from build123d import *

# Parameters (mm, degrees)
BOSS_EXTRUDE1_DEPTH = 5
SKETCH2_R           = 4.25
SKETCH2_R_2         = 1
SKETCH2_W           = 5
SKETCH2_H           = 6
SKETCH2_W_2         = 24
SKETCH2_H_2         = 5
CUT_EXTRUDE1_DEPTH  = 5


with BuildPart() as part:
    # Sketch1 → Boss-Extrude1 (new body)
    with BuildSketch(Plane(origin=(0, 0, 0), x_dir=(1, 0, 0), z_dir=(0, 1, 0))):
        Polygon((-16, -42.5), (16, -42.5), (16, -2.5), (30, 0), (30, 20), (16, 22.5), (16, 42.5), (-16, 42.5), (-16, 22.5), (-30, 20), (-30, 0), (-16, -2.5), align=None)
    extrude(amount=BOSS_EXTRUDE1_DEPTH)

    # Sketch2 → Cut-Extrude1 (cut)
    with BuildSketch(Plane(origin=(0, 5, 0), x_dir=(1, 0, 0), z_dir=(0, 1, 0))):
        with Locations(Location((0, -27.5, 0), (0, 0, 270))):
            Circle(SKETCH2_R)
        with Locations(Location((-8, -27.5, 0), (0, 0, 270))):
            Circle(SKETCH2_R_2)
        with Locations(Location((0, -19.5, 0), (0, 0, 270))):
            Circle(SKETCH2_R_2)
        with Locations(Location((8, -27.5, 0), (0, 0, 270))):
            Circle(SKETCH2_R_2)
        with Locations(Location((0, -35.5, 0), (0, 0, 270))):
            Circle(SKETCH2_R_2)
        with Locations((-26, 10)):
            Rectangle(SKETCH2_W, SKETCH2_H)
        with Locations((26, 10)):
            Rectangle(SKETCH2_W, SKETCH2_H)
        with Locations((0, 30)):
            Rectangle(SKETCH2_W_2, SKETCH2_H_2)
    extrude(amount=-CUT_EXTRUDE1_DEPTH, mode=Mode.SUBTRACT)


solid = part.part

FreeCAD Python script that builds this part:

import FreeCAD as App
import Part
import Sketcher
from FreeCAD import Vector

doc = App.newDocument("Part")
params = doc.addObject("Spreadsheet::Sheet", "Params")
for row, (alias, value) in enumerate([
    ("sketch1_width", "32 mm"),
    ("sketch1_height", "40 mm"),
    ("pad1_length", "5 mm"),
    ("sketch2_diameter", "2 mm"),
    ("sketch2_diameter2", "8.5 mm"),
    ("sketch2_width", "5 mm"),
    ("sketch2_width2", "24 mm"),
    ("sketch2_height", "6 mm"),
    ("pocket1_length", "5 mm"),
], start=1):
    params.set(f"A{row}", alias)
    params.set(f"B{row}", "=" + value)
    params.setAlias(f"B{row}", alias)

body = doc.addObject("PartDesign::Body", "Body")

sketch1 = body.newObject("Sketcher::SketchObject", "Sketch")
sketch1.AttachmentSupport = (doc.getObject("XZ_Plane"), [""])
sketch1.MapMode = "FlatFace"
sketch1.addGeometry(Part.LineSegment(Vector(-16, 42.5, 0), Vector(16, 42.5, 0)), False)
sketch1.addGeometry(Part.LineSegment(Vector(16, 42.5, 0), Vector(16, 2.5, 0)), False)
sketch1.addGeometry(Part.LineSegment(Vector(16, 2.5, 0), Vector(30, 0, 0)), False)
sketch1.addGeometry(Part.LineSegment(Vector(30, 0, 0), Vector(30, -20, 0)), False)
sketch1.addGeometry(Part.LineSegment(Vector(30, -20, 0), Vector(16, -22.5, 0)), False)
sketch1.addGeometry(Part.LineSegment(Vector(16, -22.5, 0), Vector(16, -42.5, 0)), False)
sketch1.addGeometry(Part.LineSegment(Vector(16, -42.5, 0), Vector(-16, -42.5, 0)), False)
sketch1.addGeometry(Part.LineSegment(Vector(-16, -42.5, 0), Vector(-16, -22.5, 0)), False)
sketch1.addGeometry(Part.LineSegment(Vector(-16, -22.5, 0), Vector(-30, -20, 0)), False)
sketch1.addGeometry(Part.LineSegment(Vector(-30, -20, 0), Vector(-30, 0, 0)), False)
sketch1.addGeometry(Part.LineSegment(Vector(-30, 0, 0), Vector(-16, 2.5, 0)), False)
sketch1.addGeometry(Part.LineSegment(Vector(-16, 2.5, 0), Vector(-16, 42.5, 0)), False)
sketch1.addConstraint(Sketcher.Constraint("Coincident", 0, 2, 1, 1))
sketch1.addConstraint(Sketcher.Constraint("Coincident", 1, 2, 2, 1))
sketch1.addConstraint(Sketcher.Constraint("Coincident", 2, 2, 3, 1))
sketch1.addConstraint(Sketcher.Constraint("Coincident", 3, 2, 4, 1))
sketch1.addConstraint(Sketcher.Constraint("Coincident", 4, 2, 5, 1))
sketch1.addConstraint(Sketcher.Constraint("Coincident", 5, 2, 6, 1))
sketch1.addConstraint(Sketcher.Constraint("Coincident", 6, 2, 7, 1))
sketch1.addConstraint(Sketcher.Constraint("Coincident", 7, 2, 8, 1))
sketch1.addConstraint(Sketcher.Constraint("Coincident", 8, 2, 9, 1))
sketch1.addConstraint(Sketcher.Constraint("Coincident", 9, 2, 10, 1))
sketch1.addConstraint(Sketcher.Constraint("Coincident", 10, 2, 11, 1))
sketch1.addConstraint(Sketcher.Constraint("Coincident", 11, 2, 0, 1))
sketch1.addConstraint(Sketcher.Constraint("Horizontal", 0))
sketch1.addConstraint(Sketcher.Constraint("Vertical", 1))
sketch1.addConstraint(Sketcher.Constraint("Vertical", 3))
sketch1.addConstraint(Sketcher.Constraint("Vertical", 5))
sketch1.addConstraint(Sketcher.Constraint("Horizontal", 6))
sketch1.addConstraint(Sketcher.Constraint("Vertical", 7))
sketch1.addConstraint(Sketcher.Constraint("Vertical", 9))
sketch1.addConstraint(Sketcher.Constraint("Vertical", 11))
sketch1.addConstraint(Sketcher.Constraint("Symmetric", 0, 2, 6, 2, -1, 1))
sketch1.addConstraint(Sketcher.Constraint("Symmetric", 2, 2, 9, 2, -1, 1))
sketch1.addConstraint(Sketcher.Constraint("Symmetric", 4, 2, 7, 2, -2))
sketch1.addConstraint(Sketcher.Constraint("Symmetric", 1, 2, 10, 2, -2))
sketch1.addConstraint(Sketcher.Constraint("PointOnObject", 2, 2, -1))
sketch1.addConstraint(Sketcher.Constraint("Parallel", 2, 8))
sketch1.addConstraint(Sketcher.Constraint("Parallel", 4, 10))
sketch1.addConstraint(Sketcher.Constraint("Equal", 3, 5))
sketch1.addConstraint(Sketcher.Constraint("DistanceX", 0, 1, 0, 2, 32.0))
sketch1.addConstraint(Sketcher.Constraint("DistanceY", 1, 2, 1, 1, 40.0))
sketch1.addConstraint(Sketcher.Constraint("DistanceX", -1, 1, 2, 2, 30.0))
sketch1.addConstraint(Sketcher.Constraint("DistanceY", 4, 2, 1, 2, 25.0))
sketch1.setExpression("Constraints[28]", "Params.sketch1_width")
sketch1.setExpression("Constraints[29]", "Params.sketch1_height")
pad1 = body.newObject("PartDesign::Pad", "Pad")
pad1.Profile = sketch1
pad1.setExpression("Length", "Params.pad1_length")
pad1.Reversed = True

sketch2 = body.newObject("Sketcher::SketchObject", "Sketch001")
sketch2.AttachmentSupport = (doc.getObject("XZ_Plane"), [""])
sketch2.MapMode = "FlatFace"
sketch2.AttachmentOffset = App.Placement(Vector(0, 0, -5), App.Rotation())
sketch2.addGeometry(Part.Circle(Vector(0, 27.5, 0), Vector(0, 0, 1), 4.25), False)
sketch2.addGeometry(Part.Circle(Vector(-8, 27.5, 0), Vector(0, 0, 1), 1), False)
sketch2.addGeometry(Part.Circle(Vector(0, 19.5, 0), Vector(0, 0, 1), 1), False)
sketch2.addGeometry(Part.Circle(Vector(8, 27.5, 0), Vector(0, 0, 1), 1), False)
sketch2.addGeometry(Part.Circle(Vector(0, 35.5, 0), Vector(0, 0, 1), 1), False)
sketch2.addGeometry(Part.LineSegment(Vector(-28.5, -13, 0), Vector(-28.5, -7, 0)), False)
sketch2.addGeometry(Part.LineSegment(Vector(-28.5, -7, 0), Vector(-23.5, -7, 0)), False)
sketch2.addGeometry(Part.LineSegment(Vector(-23.5, -7, 0), Vector(-23.5, -13, 0)), False)
sketch2.addGeometry(Part.LineSegment(Vector(-23.5, -13, 0), Vector(-28.5, -13, 0)), False)
sketch2.addGeometry(Part.LineSegment(Vector(23.5, -13, 0), Vector(23.5, -7, 0)), False)
sketch2.addGeometry(Part.LineSegment(Vector(23.5, -7, 0), Vector(28.5, -7, 0)), False)
sketch2.addGeometry(Part.LineSegment(Vector(28.5, -7, 0), Vector(28.5, -13, 0)), False)
sketch2.addGeometry(Part.LineSegment(Vector(28.5, -13, 0), Vector(23.5, -13, 0)), False)
sketch2.addGeometry(Part.LineSegment(Vector(-12, -32.5, 0), Vector(-12, -27.5, 0)), False)
sketch2.addGeometry(Part.LineSegment(Vector(-12, -27.5, 0), Vector(12, -27.5, 0)), False)
sketch2.addGeometry(Part.LineSegment(Vector(12, -27.5, 0), Vector(12, -32.5, 0)), False)
sketch2.addGeometry(Part.LineSegment(Vector(12, -32.5, 0), Vector(-12, -32.5, 0)), False)
sketch2.addConstraint(Sketcher.Constraint("Coincident", 5, 2, 6, 1))
sketch2.addConstraint(Sketcher.Constraint("Coincident", 6, 2, 7, 1))
sketch2.addConstraint(Sketcher.Constraint("Coincident", 7, 2, 8, 1))
sketch2.addConstraint(Sketcher.Constraint("Coincident", 8, 2, 5, 1))
sketch2.addConstraint(Sketcher.Constraint("Coincident", 9, 2, 10, 1))
sketch2.addConstraint(Sketcher.Constraint("Coincident", 10, 2, 11, 1))
sketch2.addConstraint(Sketcher.Constraint("Coincident", 11, 2, 12, 1))
sketch2.addConstraint(Sketcher.Constraint("Coincident", 12, 2, 9, 1))
sketch2.addConstraint(Sketcher.Constraint("Coincident", 13, 2, 14, 1))
sketch2.addConstraint(Sketcher.Constraint("Coincident", 14, 2, 15, 1))
sketch2.addConstraint(Sketcher.Constraint("Coincident", 15, 2, 16, 1))
sketch2.addConstraint(Sketcher.Constraint("Coincident", 16, 2, 13, 1))
sketch2.addConstraint(Sketcher.Constraint("Vertical", 5))
sketch2.addConstraint(Sketcher.Constraint("Horizontal", 6))
sketch2.addConstraint(Sketcher.Constraint("Vertical", 7))
sketch2.addConstraint(Sketcher.Constraint("Horizontal", 8))
sketch2.addConstraint(Sketcher.Constraint("Vertical", 9))
sketch2.addConstraint(Sketcher.Constraint("Horizontal", 10))
sketch2.addConstraint(Sketcher.Constraint("Vertical", 11))
sketch2.addConstraint(Sketcher.Constraint("Horizontal", 12))
sketch2.addConstraint(Sketcher.Constraint("Vertical", 13))
sketch2.addConstraint(Sketcher.Constraint("Horizontal", 14))
sketch2.addConstraint(Sketcher.Constraint("Vertical", 15))
sketch2.addConstraint(Sketcher.Constraint("Horizontal", 16))
sketch2.addConstraint(Sketcher.Constraint("Equal", 1, 2))
sketch2.addConstraint(Sketcher.Constraint("Equal", 2, 3))
sketch2.addConstraint(Sketcher.Constraint("Equal", 3, 4))
sketch2.addConstraint(Sketcher.Constraint("Symmetric", 1, 3, 3, 3, -2))
sketch2.addConstraint(Sketcher.Constraint("Symmetric", 6, 2, 9, 2, -2))
sketch2.addConstraint(Sketcher.Constraint("Symmetric", 8, 2, 11, 2, -2))
sketch2.addConstraint(Sketcher.Constraint("PointOnObject", 0, 3, -2))
sketch2.addConstraint(Sketcher.Constraint("PointOnObject", 2, 3, -2))
sketch2.addConstraint(Sketcher.Constraint("PointOnObject", 4, 3, -2))
sketch2.addConstraint(Sketcher.Constraint("Horizontal", 0, 3, 1, 3))
sketch2.addConstraint(Sketcher.Constraint("Equal", 12, 13))
sketch2.addConstraint(Sketcher.Constraint("Diameter", 1, 2.0))
sketch2.addConstraint(Sketcher.Constraint("Diameter", 0, 8.5))
sketch2.addConstraint(Sketcher.Constraint("DistanceX", 6, 1, 6, 2, 5.0))
sketch2.addConstraint(Sketcher.Constraint("DistanceX", 14, 1, 14, 2, 24.0))
sketch2.addConstraint(Sketcher.Constraint("DistanceY", 5, 1, 5, 2, 6.0))
sketch2.addConstraint(Sketcher.Constraint("DistanceX", 1, 3, -1, 1, 8.0))
sketch2.addConstraint(Sketcher.Constraint("DistanceY", 5, 2, -1, 1, 7.0))
sketch2.addConstraint(Sketcher.Constraint("DistanceX", 13, 2, -1, 1, 12.0))
sketch2.addConstraint(Sketcher.Constraint("DistanceY", 2, 3, 0, 3, 8.0))
sketch2.addConstraint(Sketcher.Constraint("DistanceY", 0, 3, 4, 3, 8.0))
sketch2.addConstraint(Sketcher.Constraint("DistanceX", 6, 2, 9, 2, 47.0))
sketch2.addConstraint(Sketcher.Constraint("DistanceY", -1, 1, 0, 3, 27.5))
sketch2.addConstraint(Sketcher.Constraint("DistanceY", 13, 2, -1, 1, 27.5))
sketch2.setExpression("Constraints[35]", "Params.sketch2_diameter")
sketch2.setExpression("Constraints[36]", "Params.sketch2_diameter2")
sketch2.setExpression("Constraints[37]", "Params.sketch2_width")
sketch2.setExpression("Constraints[38]", "Params.sketch2_width2")
sketch2.setExpression("Constraints[39]", "Params.sketch2_height")
pocket1 = body.newObject("PartDesign::Pocket", "Pocket")
pocket1.Profile = sketch2
pocket1.setExpression("Length", "Params.pocket1_length")
pocket1.Reversed = True

doc.recompute()
